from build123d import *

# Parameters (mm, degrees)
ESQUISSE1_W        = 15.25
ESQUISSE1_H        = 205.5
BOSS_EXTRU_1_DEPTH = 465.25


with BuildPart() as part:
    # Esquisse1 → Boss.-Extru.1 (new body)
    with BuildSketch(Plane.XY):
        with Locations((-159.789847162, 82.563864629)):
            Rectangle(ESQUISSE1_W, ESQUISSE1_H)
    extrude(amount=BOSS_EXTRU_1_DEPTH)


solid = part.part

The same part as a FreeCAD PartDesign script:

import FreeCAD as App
import Part
import Sketcher
from FreeCAD import Vector
Q = App.Units.Quantity

doc = App.newDocument("Part")
params = doc.addObject("Spreadsheet::Sheet", "Params")
for row, (alias, value) in enumerate([
    ("sketch1_height", "205.5 mm"),
    ("sketch1_width", "15.25 mm"),
    ("pad1_length", "465.25 mm"),
], start=1):
    params.set(f"A{row}", alias)
    params.set(f"B{row}", "=" + value)
    params.setAlias(f"B{row}", alias)

body = doc.addObject("PartDesign::Body", "Body")

# Sketch on XY plane
sketch1 = body.newObject("Sketcher::SketchObject", "Sketch")
sketch1.AttachmentSupport = (doc.getObject("XY_Plane"), [""])
sketch1.MapMode = "FlatFace"
sketch1.addGeometry([
    Part.LineSegment(Vector(-167, 185, 0), Vector(-167, -20, 0)),
    Part.LineSegment(Vector(-167, -20, 0), Vector(-152, -20, 0)),
    Part.LineSegment(Vector(-152, -20, 0), Vector(-152, 185, 0)),
    Part.LineSegment(Vector(-152, 185, 0), Vector(-167, 185, 0)),
], False)
sketch1.addConstraint([
    Sketcher.Constraint("Coincident", 0, 2, 1, 1),
    Sketcher.Constraint("Coincident", 1, 2, 2, 1),
    Sketcher.Constraint("Coincident", 2, 2, 3, 1),
    Sketcher.Constraint("Coincident", 3, 2, 0, 1),
    Sketcher.Constraint("Vertical", 0),
    Sketcher.Constraint("Horizontal", 1),
    Sketcher.Constraint("Vertical", 2),
    Sketcher.Constraint("Horizontal", 3),
    Sketcher.Constraint("DistanceY", 0, 2, 0, 1, Q("205.5 mm")),
    Sketcher.Constraint("DistanceX", 1, 1, 1, 2, Q("15.25 mm")),
    Sketcher.Constraint("DistanceX", 0, 2, -1, 1, Q("167.414847 mm")),
    Sketcher.Constraint("DistanceY", 0, 2, -1, 1, Q("20.186135 mm")),
])
sketch1.setExpression("Constraints[8]", "Params.sketch1_height")
sketch1.setExpression("Constraints[9]", "Params.sketch1_width")
pad1 = body.newObject("PartDesign::Pad", "Pad")
pad1.Profile = sketch1
pad1.setExpression("Length", "Params.pad1_length")

doc.recompute()
